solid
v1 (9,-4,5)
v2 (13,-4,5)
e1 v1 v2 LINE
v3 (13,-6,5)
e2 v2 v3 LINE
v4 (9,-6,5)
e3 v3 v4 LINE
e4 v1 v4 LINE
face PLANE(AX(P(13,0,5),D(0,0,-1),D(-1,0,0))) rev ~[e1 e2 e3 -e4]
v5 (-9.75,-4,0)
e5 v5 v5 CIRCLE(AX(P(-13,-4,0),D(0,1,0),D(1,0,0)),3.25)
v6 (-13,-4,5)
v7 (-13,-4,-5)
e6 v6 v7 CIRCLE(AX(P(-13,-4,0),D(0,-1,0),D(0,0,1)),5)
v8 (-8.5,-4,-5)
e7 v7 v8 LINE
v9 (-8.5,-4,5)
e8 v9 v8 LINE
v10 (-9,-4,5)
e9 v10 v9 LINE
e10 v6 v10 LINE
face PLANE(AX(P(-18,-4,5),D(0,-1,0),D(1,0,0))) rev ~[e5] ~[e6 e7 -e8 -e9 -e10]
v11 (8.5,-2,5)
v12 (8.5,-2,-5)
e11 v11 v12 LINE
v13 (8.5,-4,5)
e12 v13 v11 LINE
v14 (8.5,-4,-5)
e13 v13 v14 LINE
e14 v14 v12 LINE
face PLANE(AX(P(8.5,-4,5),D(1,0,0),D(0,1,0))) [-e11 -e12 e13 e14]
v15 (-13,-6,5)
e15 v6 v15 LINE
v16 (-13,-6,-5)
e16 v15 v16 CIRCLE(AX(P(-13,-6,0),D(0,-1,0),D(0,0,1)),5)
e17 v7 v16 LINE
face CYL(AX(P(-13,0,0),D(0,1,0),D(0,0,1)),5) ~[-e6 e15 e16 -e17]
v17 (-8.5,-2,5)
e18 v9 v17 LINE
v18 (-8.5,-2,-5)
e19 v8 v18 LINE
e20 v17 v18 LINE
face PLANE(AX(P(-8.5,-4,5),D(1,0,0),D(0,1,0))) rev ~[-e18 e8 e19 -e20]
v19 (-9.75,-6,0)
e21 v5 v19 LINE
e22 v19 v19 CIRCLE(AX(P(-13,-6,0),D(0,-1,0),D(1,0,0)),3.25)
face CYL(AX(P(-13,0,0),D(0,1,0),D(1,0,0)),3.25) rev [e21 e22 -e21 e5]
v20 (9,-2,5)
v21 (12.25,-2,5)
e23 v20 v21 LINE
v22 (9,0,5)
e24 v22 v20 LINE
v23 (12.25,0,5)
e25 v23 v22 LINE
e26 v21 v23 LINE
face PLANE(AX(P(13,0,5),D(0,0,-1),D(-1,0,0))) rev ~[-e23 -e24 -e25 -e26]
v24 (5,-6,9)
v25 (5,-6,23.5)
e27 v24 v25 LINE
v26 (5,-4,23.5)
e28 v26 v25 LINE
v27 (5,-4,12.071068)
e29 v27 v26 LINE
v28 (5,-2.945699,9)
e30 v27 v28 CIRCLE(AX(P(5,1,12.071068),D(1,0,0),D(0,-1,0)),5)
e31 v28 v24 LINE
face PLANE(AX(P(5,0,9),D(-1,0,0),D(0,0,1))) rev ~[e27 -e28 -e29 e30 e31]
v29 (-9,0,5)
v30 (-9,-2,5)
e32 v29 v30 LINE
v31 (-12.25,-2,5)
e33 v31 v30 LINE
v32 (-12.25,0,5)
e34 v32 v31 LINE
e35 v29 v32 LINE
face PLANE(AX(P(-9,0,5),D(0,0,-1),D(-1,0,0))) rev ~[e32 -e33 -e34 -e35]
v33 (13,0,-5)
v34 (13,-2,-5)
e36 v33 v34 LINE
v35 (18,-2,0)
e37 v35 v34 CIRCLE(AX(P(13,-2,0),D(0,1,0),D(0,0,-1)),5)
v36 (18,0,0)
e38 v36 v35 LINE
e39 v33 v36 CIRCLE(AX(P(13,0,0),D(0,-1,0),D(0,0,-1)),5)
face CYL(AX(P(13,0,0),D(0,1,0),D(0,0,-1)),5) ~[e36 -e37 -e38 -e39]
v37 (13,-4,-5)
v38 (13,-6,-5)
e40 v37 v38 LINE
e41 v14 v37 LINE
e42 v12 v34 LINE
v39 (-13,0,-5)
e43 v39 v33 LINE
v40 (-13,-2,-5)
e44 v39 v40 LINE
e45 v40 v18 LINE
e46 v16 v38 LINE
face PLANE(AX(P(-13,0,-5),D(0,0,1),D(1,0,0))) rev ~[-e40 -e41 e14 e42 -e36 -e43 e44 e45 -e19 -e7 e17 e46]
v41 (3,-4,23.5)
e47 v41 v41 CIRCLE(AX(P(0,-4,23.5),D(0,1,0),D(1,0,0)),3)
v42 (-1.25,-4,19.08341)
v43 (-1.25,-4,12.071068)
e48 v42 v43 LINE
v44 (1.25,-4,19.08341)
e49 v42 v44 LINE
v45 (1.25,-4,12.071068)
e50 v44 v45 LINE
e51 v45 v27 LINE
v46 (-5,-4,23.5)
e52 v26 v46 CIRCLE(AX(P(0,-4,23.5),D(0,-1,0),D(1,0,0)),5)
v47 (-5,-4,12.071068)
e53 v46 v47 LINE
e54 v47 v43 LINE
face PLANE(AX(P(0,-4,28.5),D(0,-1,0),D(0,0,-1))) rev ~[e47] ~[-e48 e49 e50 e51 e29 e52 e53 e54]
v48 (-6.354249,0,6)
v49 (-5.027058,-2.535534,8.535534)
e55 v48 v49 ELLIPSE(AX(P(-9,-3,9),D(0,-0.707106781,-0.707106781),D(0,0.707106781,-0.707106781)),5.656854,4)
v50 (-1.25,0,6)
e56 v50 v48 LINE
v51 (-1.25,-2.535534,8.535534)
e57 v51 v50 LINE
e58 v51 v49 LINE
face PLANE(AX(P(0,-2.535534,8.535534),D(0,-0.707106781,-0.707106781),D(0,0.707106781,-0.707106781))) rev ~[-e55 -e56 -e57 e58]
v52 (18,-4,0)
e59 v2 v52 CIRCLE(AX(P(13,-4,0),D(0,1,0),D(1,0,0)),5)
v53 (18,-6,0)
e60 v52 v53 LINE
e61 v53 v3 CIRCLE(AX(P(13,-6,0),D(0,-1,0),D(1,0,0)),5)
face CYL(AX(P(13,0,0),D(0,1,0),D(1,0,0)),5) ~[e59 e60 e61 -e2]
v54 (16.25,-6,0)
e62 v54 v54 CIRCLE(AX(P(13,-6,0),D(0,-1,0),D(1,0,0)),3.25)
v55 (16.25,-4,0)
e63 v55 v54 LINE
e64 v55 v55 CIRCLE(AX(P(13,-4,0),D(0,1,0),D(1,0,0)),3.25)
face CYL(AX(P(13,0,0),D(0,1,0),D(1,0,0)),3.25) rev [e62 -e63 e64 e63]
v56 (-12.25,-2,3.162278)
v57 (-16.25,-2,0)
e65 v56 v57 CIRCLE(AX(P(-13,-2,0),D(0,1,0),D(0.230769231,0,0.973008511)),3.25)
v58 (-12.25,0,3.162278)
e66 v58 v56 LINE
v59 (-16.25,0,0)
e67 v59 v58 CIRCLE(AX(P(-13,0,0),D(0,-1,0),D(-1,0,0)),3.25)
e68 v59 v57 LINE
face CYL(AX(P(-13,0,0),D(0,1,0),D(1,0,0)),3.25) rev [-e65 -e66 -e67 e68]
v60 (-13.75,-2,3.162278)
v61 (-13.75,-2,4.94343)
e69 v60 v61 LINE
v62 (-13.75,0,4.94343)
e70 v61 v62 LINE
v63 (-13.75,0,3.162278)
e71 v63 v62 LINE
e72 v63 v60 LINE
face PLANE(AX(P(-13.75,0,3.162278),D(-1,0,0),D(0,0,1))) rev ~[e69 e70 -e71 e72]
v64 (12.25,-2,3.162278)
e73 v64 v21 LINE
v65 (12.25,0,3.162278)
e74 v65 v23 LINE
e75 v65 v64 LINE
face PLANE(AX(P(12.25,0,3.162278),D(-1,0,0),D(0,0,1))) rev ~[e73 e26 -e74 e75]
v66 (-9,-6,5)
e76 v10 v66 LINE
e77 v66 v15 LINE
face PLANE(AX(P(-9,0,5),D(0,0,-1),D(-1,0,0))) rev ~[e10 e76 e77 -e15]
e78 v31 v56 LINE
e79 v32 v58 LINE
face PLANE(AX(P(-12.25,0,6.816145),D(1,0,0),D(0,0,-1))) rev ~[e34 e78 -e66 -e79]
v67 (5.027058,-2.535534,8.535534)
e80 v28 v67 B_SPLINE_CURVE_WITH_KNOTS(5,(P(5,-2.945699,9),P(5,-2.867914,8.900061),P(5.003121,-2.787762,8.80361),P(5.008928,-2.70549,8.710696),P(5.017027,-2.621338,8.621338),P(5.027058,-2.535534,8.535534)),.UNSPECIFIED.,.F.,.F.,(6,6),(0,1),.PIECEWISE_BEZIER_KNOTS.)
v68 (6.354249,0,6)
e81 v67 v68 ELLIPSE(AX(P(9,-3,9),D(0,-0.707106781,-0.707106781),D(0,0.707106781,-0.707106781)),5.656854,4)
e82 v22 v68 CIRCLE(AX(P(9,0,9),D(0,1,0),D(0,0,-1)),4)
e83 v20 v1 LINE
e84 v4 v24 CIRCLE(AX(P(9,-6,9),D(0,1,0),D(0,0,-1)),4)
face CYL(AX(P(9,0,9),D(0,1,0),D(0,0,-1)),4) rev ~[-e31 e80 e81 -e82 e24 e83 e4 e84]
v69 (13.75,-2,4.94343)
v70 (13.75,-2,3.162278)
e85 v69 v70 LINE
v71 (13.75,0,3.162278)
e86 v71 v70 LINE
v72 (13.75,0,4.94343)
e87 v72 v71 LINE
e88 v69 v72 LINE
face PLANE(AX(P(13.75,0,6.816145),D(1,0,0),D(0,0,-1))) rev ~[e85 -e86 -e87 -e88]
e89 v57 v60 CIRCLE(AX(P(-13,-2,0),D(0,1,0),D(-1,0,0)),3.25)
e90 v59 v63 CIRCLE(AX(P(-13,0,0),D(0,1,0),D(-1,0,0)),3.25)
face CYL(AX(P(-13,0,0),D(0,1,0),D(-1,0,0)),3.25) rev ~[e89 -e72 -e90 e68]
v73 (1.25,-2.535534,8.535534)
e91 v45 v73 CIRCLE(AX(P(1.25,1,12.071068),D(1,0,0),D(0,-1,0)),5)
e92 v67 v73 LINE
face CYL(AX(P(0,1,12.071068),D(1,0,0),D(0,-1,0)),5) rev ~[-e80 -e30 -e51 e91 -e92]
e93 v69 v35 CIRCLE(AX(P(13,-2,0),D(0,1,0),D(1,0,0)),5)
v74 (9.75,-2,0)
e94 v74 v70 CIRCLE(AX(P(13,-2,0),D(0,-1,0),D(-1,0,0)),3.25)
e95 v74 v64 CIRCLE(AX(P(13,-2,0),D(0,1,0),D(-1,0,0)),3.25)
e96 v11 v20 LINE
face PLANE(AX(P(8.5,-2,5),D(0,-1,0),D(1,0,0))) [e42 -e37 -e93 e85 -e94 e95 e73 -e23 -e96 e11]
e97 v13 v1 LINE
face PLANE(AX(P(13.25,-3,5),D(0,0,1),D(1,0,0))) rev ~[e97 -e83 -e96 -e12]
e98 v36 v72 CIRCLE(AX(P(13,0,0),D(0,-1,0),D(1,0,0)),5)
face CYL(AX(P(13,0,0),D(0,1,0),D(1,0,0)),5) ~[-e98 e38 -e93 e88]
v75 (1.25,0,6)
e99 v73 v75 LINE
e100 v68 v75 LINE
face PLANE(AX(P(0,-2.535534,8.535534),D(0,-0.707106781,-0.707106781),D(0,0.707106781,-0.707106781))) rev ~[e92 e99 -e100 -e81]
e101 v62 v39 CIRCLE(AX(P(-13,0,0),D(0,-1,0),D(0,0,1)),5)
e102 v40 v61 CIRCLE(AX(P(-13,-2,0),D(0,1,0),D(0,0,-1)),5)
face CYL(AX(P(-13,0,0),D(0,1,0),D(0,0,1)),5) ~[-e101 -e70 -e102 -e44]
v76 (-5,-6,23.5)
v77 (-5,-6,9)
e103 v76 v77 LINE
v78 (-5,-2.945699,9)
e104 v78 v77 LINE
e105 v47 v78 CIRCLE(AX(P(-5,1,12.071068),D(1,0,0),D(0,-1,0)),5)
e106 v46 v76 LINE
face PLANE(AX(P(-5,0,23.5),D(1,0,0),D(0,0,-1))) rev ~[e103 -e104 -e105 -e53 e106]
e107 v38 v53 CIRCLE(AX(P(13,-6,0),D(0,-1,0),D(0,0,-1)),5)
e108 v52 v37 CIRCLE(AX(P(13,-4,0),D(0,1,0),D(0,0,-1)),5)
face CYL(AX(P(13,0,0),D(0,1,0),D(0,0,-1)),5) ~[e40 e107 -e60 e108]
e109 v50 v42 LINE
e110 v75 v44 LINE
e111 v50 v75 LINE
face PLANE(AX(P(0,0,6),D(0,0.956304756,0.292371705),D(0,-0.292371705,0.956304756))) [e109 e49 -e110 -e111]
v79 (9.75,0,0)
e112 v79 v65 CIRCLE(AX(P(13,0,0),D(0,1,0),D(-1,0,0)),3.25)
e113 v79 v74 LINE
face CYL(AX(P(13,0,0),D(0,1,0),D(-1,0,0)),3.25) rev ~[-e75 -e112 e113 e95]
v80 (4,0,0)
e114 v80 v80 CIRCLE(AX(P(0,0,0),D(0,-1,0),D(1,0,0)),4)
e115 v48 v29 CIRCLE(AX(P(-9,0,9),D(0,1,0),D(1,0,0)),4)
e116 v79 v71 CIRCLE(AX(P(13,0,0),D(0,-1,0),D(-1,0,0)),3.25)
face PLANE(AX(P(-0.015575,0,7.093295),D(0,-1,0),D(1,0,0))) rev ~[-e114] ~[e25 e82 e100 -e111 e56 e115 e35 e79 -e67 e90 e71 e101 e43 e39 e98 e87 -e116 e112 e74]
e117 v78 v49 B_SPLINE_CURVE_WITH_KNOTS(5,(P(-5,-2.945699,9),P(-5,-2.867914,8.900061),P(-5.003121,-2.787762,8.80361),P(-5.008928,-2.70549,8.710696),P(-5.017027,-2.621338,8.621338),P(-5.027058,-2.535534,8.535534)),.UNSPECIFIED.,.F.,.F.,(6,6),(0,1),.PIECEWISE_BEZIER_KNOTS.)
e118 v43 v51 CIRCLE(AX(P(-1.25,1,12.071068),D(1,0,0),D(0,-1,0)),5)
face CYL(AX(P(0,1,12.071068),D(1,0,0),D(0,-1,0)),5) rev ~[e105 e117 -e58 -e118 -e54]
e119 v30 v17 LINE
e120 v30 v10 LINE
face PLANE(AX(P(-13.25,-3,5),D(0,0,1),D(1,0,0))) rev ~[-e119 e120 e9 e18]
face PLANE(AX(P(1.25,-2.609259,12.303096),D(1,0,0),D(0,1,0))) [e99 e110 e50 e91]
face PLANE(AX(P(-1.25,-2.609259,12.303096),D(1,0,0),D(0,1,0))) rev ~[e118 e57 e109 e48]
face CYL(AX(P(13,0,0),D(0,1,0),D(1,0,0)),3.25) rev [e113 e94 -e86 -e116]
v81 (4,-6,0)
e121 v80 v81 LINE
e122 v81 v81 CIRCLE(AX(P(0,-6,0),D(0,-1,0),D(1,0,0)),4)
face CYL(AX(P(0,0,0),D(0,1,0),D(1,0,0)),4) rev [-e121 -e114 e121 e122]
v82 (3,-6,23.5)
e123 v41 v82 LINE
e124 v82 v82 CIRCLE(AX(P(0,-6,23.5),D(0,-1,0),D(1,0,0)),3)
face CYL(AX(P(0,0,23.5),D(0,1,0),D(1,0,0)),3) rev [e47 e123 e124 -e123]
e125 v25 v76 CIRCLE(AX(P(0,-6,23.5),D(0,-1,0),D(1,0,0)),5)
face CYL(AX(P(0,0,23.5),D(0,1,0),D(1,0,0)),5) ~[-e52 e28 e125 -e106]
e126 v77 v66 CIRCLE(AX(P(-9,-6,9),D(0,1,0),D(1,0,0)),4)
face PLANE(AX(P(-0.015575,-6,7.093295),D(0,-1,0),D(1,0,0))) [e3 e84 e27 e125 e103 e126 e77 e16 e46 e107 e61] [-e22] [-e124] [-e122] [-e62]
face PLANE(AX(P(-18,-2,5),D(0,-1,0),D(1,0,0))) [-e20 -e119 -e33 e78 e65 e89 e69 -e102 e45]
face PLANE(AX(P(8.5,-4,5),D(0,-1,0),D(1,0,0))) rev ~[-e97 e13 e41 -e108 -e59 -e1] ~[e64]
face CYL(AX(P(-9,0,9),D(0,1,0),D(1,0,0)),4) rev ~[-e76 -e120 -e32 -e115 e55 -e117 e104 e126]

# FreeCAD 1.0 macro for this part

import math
import FreeCAD as App
import Part
import Sketcher
Q = App.Units.Quantity


def add_polygon(sketch, points):
    """Adds a closed chain of lines whose ends are joined by coincident constraints."""
    first, n = sketch.GeometryCount, len(points)
    for a, b in zip(points, points[1:] + points[:1]):
        sketch.addGeometry(Part.LineSegment(App.Vector(*a, 0), App.Vector(*b, 0)), False)
    for i in range(n):
        sketch.addConstraint(Sketcher.Constraint("Coincident", first + i, 2, first + (i + 1) % n, 1))

doc = App.newDocument("Part")
body = doc.addObject("PartDesign::Body", "Body")

# Sketch on XZ plane
sketch1 = body.newObject("Sketcher::SketchObject", "Sketch")
sketch1.AttachmentSupport = (doc.getObject("XZ_Plane"), [""])
sketch1.MapMode = "FlatFace"
sketch1.addGeometry([
    Part.LineSegment(App.Vector(-9, 5, 0), App.Vector(-13, 5, 0)),  # 0
    Part.ArcOfCircle(Part.Circle(App.Vector(-13, 0, 0), App.Vector(0, 0, 1), 5), math.radians(90), math.radians(270)),  # 1
    Part.LineSegment(App.Vector(-13, -5, 0), App.Vector(13, -5, 0)),  # 2
    Part.ArcOfCircle(Part.Circle(App.Vector(13, 0, 0), App.Vector(0, 0, 1), 5), math.radians(-90), math.radians(0)),  # 3
    Part.ArcOfCircle(Part.Circle(App.Vector(13, 0, 0), App.Vector(0, 0, 1), 5), math.radians(0), math.radians(90)),  # 4
    Part.LineSegment(App.Vector(13, 5, 0), App.Vector(9, 5, 0)),  # 5
    Part.ArcOfCircle(Part.Circle(App.Vector(9, 9, 0), App.Vector(0, 0, 1), 4), math.radians(180), math.radians(270)),  # 6
    Part.LineSegment(App.Vector(5, 9, 0), App.Vector(5, 23.5, 0)),  # 7
    Part.ArcOfCircle(Part.Circle(App.Vector(0, 23.5, 0), App.Vector(0, 0, 1), 5), math.radians(0), math.radians(180)),  # 8
    Part.LineSegment(App.Vector(-5, 23.5, 0), App.Vector(-5, 9, 0)),  # 9
    Part.ArcOfCircle(Part.Circle(App.Vector(-9, 9, 0), App.Vector(0, 0, 1), 4), math.radians(-90), math.radians(0)),  # 10
    Part.Circle(App.Vector(-13, 0, 0), App.Vector(0, 0, 1), 3.2),  # 11
    Part.Circle(App.Vector(0, 0, 0), App.Vector(0, 0, 1), 4),  # 12
    Part.Circle(App.Vector(13, 0, 0), App.Vector(0, 0, 1), 3.2),  # 13
    Part.Circle(App.Vector(0, 23.5, 0), App.Vector(0, 0, 1), 3),  # 14
], False)
sketch1.addConstraint([
    Sketcher.Constraint("Tangent", 0, 2, 1, 1),
    Sketcher.Constraint("Tangent", 1, 2, 2, 1),
    Sketcher.Constraint("Tangent", 2, 2, 3, 1),
    Sketcher.Constraint("Tangent", 3, 2, 4, 1),
    Sketcher.Constraint("Tangent", 4, 2, 5, 1),
    Sketcher.Constraint("Tangent", 5, 2, 6, 2),
    Sketcher.Constraint("Tangent", 6, 1, 7, 1),
    Sketcher.Constraint("Tangent", 7, 2, 8, 1),
    Sketcher.Constraint("Tangent", 8, 2, 9, 1),
    Sketcher.Constraint("Tangent", 9, 2, 10, 2),
    Sketcher.Constraint("Tangent", 10, 1, 0, 1),
    Sketcher.Constraint("Horizontal", 0),
    Sketcher.Constraint("Horizontal", 2),
    Sketcher.Constraint("Horizontal", 5),
    Sketcher.Constraint("Vertical", 7),
    Sketcher.Constraint("Vertical", 9),
    Sketcher.Constraint("Coincident", 12, 3, -1, 1),
    Sketcher.Constraint("Coincident", 11, 3, 1, 3),
    Sketcher.Constraint("Coincident", 13, 3, 3, 3),
    Sketcher.Constraint("Coincident", 14, 3, 8, 3),
    Sketcher.Constraint("Equal", 1, 3),
    Sketcher.Constraint("Equal", 3, 4),
    Sketcher.Constraint("Equal", 4, 8),
    Sketcher.Constraint("Equal", 6, 10),
    Sketcher.Constraint("Equal", 10, 12),
    Sketcher.Constraint("Equal", 11, 13),
    Sketcher.Constraint("Symmetric", 1, 3, 3, 3, -1, 1),
    Sketcher.Constraint("PointOnObject", 8, 3, -2),
    Sketcher.Constraint("PointOnObject", 3, 2, -1),
    Sketcher.Constraint("Diameter", 12, Q("8 mm")),
    Sketcher.Constraint("Diameter", 14, Q("6 mm")),
    Sketcher.Constraint("Radius", 1, Q("5 mm")),
    Sketcher.Constraint("Diameter", 11, Q("6.5 mm")),
    Sketcher.Constraint("DistanceX", 0, 2, 0, 1, Q("4 mm")),
    Sketcher.Constraint("DistanceY", 7, 1, 7, 2, Q("14.5 mm")),
])
pad1 = body.newObject("PartDesign::Pad", "Pad")
pad1.Profile = sketch1
pad1.Length = 6

# Sketch on YZ plane
sketch2 = body.newObject("Sketcher::SketchObject", "Sketch001")
sketch2.AttachmentSupport = (doc.getObject("YZ_Plane"), [""])
sketch2.MapMode = "FlatFace"
sketch2.addGeometry([
    Part.LineSegment(App.Vector(0, 28.5, 0), App.Vector(-4, 28.5, 0)),  # 0
    Part.LineSegment(App.Vector(-4, 28.5, 0), App.Vector(-4, 12.1, 0)),  # 1
    Part.ArcOfCircle(Part.Circle(App.Vector(1, 12.1, 0), App.Vector(0, 0, 1), 5), math.radians(180), math.radians(225)),  # 2
    Part.LineSegment(App.Vector(-2.5, 8.5, 0), App.Vector(0, 6, 0)),  # 3
    Part.LineSegment(App.Vector(0, 6, 0), App.Vector(0, 28.5, 0)),  # 4
], False)
sketch2.addConstraint([
    Sketcher.Constraint("Coincident", 0, 2, 1, 1),
    Sketcher.Constraint("Tangent", 1, 2, 2, 1),
    Sketcher.Constraint("Tangent", 2, 2, 3, 1),
    Sketcher.Constraint("Coincident", 3, 2, 4, 1),
    Sketcher.Constraint("Coincident", 4, 2, 0, 1),
    Sketcher.Constraint("Horizontal", 0),
    Sketcher.Constraint("Vertical", 1),
    Sketcher.Constraint("Vertical", 4),
    Sketcher.Constraint("PointOnObject", 3, 2, -2),
    Sketcher.Constraint("Radius", 2, Q("5 mm")),
    Sketcher.Constraint("DistanceX", 0, 2, 0, 1, Q("4 mm")),
    Sketcher.Constraint("Angle", 3, Q("-45 deg")),
    Sketcher.Constraint("DistanceY", 4, 1, 4, 2, Q("22.5 mm")),
    Sketcher.Constraint("DistanceY", -1, 1, 3, 2, Q("6 mm")),
])
pocket1 = body.newObject("PartDesign::Pocket", "Pocket")
pocket1.Profile = sketch2
pocket1.Length = 25
pocket1.Midplane = True

# Sketch on YZ plane
sketch3 = body.newObject("Sketcher::SketchObject", "Sketch002")
sketch3.AttachmentSupport = (doc.getObject("YZ_Plane"), [""])
sketch3.MapMode = "FlatFace"
sketch3.addGeometry([
    Part.LineSegment(App.Vector(-2.5, 8.5, 0), App.Vector(0, 6, 0)),
    Part.LineSegment(App.Vector(0, 6, 0), App.Vector(-4, 19.1, 0)),
    Part.LineSegment(App.Vector(-4, 19.1, 0), App.Vector(-4, 12.1, 0)),
    Part.ArcOfCircle(Part.Circle(App.Vector(1, 12.1, 0), App.Vector(0, 0, 1), 5), math.radians(180), math.radians(225)),
], False)
sketch3.addConstraint([
    Sketcher.Constraint("Coincident", 0, 2, 1, 1),
    Sketcher.Constraint("Coincident", 1, 2, 2, 1),
    Sketcher.Constraint("Tangent", 2, 2, 3, 1),
    Sketcher.Constraint("Tangent", 3, 2, 0, 1),
    Sketcher.Constraint("Vertical", 2),
    Sketcher.Constraint("PointOnObject", 0, 2, -2),
    Sketcher.Constraint("Radius", 3, Q("5 mm")),
    Sketcher.Constraint("Angle", 0, Q("-45 deg")),
    Sketcher.Constraint("Angle", 1, Q("107 deg")),
    Sketcher.Constraint("DistanceX", -1, 1, 3, 3, Q("1 mm")),
    Sketcher.Constraint("DistanceY", -1, 1, 0, 2, Q("6 mm")),
])
pad2 = body.newObject("PartDesign::Pad", "Pad001")
pad2.Profile = sketch3
pad2.Length = 2.5
pad2.Midplane = True

# Sketch on XY plane
sketch4 = body.newObject("Sketcher::SketchObject", "Sketch003")
sketch4.AttachmentSupport = (doc.getObject("XY_Plane"), [""])
sketch4.MapMode = "FlatFace"
sketch4.AttachmentOffset = App.Placement(App.Vector(0, 0, 5), App.Rotation())
add_polygon(sketch4, [(8.5, -2), (8.5, -4), (18, -4), (18, -2)])  # lines 0-3
add_polygon(sketch4, [(-18, -2), (-18, -4), (-8.5, -4), (-8.5, -2)])  # lines 4-7
sketch4.addConstraint([
    Sketcher.Constraint("Vertical", 0),
    Sketcher.Constraint("Horizontal", 1),
    Sketcher.Constraint("Vertical", 2),
    Sketcher.Constraint("Horizontal", 3),
    Sketcher.Constraint("Vertical", 4),
    Sketcher.Constraint("Horizontal", 5),
    Sketcher.Constraint("Vertical", 6),
    Sketcher.Constraint("Horizontal", 7),
    Sketcher.Constraint("Symmetric", 1, 2, 4, 2, -2),
    Sketcher.Constraint("Symmetric", 3, 2, 6, 2, -2),
    Sketcher.Constraint("DistanceY", 0, 2, 0, 1, Q("2 mm")),
    Sketcher.Constraint("DistanceX", 1, 1, 1, 2, Q("9.5 mm")),
    Sketcher.Constraint("DistanceY", 0, 2, -1, 1, Q("4 mm")),
    Sketcher.Constraint("DistanceX", -1, 1, 1, 2, Q("18 mm")),
])
pocket2 = body.newObject("PartDesign::Pocket", "Pocket001")
pocket2.Profile = sketch4
pocket2.Length = 25

# Sketch on XZ plane
sketch5 = body.newObject("Sketcher::SketchObject", "Sketch004")
sketch5.AttachmentSupport = (doc.getObject("XZ_Plane"), [""])
sketch5.MapMode = "FlatFace"
sketch5.addGeometry([
    Part.LineSegment(App.Vector(-13.8, 6.8, 0), App.Vector(-12.2, 6.8, 0)),  # 0
    Part.LineSegment(App.Vector(-12.2, 6.8, 0), App.Vector(-12.2, 3.2, 0)),  # 1
    Part.ArcOfCircle(Part.Circle(App.Vector(-13, 0, 0), App.Vector(0, 0, 1), 3.2), math.radians(180), math.radians(437)),  # 2
    Part.ArcOfCircle(Part.Circle(App.Vector(-13, 0, 0), App.Vector(0, 0, 1), 3.2), math.radians(103), math.radians(180)),  # 3
    Part.LineSegment(App.Vector(-13.8, 3.2, 0), App.Vector(-13.8, 6.8, 0)),  # 4
    Part.ArcOfCircle(Part.Circle(App.Vector(13, 0, 0), App.Vector(0, 0, 1), 3.2), math.radians(180), math.radians(437)),  # 5
    Part.ArcOfCircle(Part.Circle(App.Vector(13, 0, 0), App.Vector(0, 0, 1), 3.2), math.radians(103), math.radians(180)),  # 6
    Part.LineSegment(App.Vector(12.2, 3.2, 0), App.Vector(12.2, 6.8, 0)),  # 7
    Part.LineSegment(App.Vector(12.2, 6.8, 0), App.Vector(13.8, 6.8, 0)),  # 8
    Part.LineSegment(App.Vector(13.8, 6.8, 0), App.Vector(13.8, 3.2, 0)),  # 9
], False)
sketch5.addConstraint([
    Sketcher.Constraint("Coincident", 0, 2, 1, 1),
    Sketcher.Constraint("Coincident", 1, 2, 2, 2),
    Sketcher.Constraint("Tangent", 2, 1, 3, 2),
    Sketcher.Constraint("Coincident", 3, 1, 4, 1),
    Sketcher.Constraint("Coincident", 4, 2, 0, 1),
    Sketcher.Constraint("Tangent", 5, 1, 6, 2),
    Sketcher.Constraint("Coincident", 6, 1, 7, 1),
    Sketcher.Constraint("Coincident", 7, 2, 8, 1),
    Sketcher.Constraint("Coincident", 8, 2, 9, 1),
    Sketcher.Constraint("Coincident", 9, 2, 5, 2),
    Sketcher.Constraint("Horizontal", 0),
    Sketcher.Constraint("Vertical", 1),
    Sketcher.Constraint("Vertical", 4),
    Sketcher.Constraint("Vertical", 7),
    Sketcher.Constraint("Horizontal", 8),
    Sketcher.Constraint("Vertical", 9),
    Sketcher.Constraint("Equal", 2, 3),
    Sketcher.Constraint("Equal", 3, 5),
    Sketcher.Constraint("Equal", 5, 6),
    Sketcher.Constraint("Symmetric", 2, 3, 5, 3, -1, 1),
    Sketcher.Constraint("Symmetric", 1, 2, 6, 1, -2),
    Sketcher.Constraint("Symmetric", 4, 2, 8, 2, -2),
    Sketcher.Constraint("PointOnObject", 2, 1, -1),
    Sketcher.Constraint("PointOnObject", 5, 1, -1),
    Sketcher.Constraint("Horizontal", 1, 2, 3, 1),
    Sketcher.Constraint("Radius", 2, Q("3.25 mm")),
    Sketcher.Constraint("DistanceX", 0, 1, 0, 2, Q("1.5 mm")),
    Sketcher.Constraint("DistanceX", 2, 3, -1, 1, Q("13 mm")),
    Sketcher.Constraint("DistanceY", 1, 2, 1, 1, Q("3.653867 mm")),
])
pocket3 = body.newObject("PartDesign::Pocket", "Pocket002")
pocket3.Profile = sketch5
pocket3.Length = 2
pocket3.Reversed = True

doc.recompute()
